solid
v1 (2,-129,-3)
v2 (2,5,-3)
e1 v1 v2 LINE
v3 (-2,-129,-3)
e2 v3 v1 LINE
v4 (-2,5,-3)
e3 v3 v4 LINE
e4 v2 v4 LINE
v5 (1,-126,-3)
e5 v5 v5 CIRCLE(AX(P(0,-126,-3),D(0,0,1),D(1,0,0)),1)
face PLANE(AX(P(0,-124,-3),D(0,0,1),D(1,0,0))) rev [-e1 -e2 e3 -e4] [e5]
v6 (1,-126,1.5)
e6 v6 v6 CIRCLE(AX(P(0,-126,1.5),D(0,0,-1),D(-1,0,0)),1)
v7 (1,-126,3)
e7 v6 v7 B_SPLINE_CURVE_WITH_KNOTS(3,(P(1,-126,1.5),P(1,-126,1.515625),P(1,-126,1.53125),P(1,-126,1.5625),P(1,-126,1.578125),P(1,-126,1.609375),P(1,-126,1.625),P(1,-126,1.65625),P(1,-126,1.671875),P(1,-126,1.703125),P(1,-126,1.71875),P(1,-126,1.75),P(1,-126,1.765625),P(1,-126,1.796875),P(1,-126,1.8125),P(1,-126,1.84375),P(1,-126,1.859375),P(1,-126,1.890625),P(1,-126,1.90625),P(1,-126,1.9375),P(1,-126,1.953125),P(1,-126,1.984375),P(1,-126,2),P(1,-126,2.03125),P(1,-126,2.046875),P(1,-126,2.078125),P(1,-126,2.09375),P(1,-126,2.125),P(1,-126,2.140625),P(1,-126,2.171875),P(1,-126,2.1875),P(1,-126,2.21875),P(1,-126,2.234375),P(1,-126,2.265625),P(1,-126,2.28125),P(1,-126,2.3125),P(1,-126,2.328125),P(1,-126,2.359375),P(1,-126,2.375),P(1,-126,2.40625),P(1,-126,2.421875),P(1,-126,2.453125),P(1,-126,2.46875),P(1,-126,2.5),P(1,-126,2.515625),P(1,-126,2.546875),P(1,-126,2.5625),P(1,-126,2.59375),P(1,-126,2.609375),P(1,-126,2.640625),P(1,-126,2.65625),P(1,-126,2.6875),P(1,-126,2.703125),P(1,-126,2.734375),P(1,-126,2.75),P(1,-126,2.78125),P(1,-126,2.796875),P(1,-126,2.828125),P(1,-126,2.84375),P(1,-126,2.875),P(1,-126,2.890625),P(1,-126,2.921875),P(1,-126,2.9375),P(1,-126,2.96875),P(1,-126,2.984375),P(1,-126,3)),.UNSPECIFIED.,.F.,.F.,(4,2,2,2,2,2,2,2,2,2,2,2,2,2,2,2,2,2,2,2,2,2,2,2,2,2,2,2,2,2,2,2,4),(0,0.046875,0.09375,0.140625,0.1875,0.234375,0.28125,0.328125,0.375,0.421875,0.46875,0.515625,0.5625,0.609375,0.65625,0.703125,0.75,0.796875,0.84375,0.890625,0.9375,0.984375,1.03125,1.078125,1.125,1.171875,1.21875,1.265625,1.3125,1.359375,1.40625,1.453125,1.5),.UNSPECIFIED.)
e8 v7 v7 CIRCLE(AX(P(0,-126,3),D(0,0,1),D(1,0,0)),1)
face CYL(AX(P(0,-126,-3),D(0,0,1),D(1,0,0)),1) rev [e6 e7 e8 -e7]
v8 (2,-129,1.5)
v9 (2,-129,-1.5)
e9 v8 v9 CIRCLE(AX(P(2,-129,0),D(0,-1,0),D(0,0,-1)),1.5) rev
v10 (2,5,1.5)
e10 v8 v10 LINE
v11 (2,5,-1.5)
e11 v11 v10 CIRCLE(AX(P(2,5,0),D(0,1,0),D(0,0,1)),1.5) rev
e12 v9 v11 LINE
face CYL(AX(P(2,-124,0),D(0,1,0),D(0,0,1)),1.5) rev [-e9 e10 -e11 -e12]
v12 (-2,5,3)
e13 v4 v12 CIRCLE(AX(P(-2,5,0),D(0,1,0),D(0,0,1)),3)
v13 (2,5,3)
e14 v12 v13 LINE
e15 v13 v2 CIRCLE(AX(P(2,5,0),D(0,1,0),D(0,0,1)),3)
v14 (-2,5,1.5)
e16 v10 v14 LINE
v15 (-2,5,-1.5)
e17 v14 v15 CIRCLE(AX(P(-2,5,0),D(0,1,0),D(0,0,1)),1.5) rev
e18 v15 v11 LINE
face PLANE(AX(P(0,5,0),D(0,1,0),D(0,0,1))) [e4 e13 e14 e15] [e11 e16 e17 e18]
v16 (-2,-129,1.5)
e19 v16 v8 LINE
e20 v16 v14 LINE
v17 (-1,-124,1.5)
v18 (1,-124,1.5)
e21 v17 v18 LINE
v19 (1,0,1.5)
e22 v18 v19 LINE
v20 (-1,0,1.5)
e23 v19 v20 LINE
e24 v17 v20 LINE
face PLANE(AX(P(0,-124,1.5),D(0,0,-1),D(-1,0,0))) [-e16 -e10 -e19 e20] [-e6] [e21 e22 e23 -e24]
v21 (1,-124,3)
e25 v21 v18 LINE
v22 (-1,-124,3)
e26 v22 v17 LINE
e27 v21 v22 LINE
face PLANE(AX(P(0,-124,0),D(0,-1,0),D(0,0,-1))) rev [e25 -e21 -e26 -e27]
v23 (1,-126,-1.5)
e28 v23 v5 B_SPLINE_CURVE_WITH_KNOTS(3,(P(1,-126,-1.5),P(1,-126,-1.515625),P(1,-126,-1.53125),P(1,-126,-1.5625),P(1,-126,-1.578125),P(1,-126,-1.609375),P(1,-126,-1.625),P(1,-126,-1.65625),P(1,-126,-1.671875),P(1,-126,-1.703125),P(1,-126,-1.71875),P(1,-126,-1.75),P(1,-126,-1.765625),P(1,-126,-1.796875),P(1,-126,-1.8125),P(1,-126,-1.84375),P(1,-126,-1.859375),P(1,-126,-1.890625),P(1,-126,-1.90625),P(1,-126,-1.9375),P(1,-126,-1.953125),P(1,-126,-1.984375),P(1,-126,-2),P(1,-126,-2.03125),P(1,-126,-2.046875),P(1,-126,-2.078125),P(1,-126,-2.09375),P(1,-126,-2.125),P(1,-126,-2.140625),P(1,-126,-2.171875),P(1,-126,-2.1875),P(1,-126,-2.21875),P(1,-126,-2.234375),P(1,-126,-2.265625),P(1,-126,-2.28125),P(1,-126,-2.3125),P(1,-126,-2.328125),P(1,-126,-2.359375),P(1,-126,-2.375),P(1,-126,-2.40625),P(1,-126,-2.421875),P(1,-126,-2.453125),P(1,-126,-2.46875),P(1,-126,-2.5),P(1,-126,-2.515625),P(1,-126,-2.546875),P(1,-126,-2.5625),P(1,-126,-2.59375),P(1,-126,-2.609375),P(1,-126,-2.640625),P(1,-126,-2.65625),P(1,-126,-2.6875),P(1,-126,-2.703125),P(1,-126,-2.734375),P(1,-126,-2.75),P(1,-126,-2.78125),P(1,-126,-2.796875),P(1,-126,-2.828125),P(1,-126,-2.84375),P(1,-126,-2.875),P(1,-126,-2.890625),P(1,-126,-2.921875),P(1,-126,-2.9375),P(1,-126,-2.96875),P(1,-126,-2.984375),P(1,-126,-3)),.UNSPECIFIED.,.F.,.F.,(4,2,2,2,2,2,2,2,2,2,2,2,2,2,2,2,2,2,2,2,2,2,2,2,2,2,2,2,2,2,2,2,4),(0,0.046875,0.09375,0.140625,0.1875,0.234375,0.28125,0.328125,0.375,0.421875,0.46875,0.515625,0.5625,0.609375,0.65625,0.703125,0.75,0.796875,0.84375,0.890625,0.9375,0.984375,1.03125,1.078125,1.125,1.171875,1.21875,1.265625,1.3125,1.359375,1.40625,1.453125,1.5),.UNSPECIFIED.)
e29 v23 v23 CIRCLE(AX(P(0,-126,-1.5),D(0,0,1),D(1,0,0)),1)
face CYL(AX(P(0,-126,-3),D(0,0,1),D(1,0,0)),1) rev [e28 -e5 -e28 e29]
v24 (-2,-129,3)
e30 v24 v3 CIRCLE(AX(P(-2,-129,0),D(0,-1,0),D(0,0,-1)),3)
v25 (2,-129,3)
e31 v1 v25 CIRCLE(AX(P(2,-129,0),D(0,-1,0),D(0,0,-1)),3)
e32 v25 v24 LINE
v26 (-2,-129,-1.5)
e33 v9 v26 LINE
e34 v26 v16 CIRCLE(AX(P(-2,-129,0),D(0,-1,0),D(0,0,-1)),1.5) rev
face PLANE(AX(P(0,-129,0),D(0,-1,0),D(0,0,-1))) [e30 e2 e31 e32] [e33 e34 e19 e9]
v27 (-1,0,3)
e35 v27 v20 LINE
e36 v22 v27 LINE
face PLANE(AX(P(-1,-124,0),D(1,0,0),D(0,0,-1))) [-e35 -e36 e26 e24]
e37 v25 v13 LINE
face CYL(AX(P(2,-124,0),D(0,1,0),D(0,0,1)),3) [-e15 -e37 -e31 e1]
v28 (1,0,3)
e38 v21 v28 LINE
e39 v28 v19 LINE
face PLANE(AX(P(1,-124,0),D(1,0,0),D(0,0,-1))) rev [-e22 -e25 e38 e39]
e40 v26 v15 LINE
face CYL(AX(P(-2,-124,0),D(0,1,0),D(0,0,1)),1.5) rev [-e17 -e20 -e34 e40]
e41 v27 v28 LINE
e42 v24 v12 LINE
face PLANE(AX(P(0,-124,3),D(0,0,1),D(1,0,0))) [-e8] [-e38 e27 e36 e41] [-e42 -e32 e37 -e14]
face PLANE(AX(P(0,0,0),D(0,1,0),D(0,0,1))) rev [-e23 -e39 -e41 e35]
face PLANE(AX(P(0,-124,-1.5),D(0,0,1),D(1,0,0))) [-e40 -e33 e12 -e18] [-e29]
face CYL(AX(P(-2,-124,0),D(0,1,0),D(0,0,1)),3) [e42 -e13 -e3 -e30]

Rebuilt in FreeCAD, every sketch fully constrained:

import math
import FreeCAD as App
import Part
import Sketcher
from FreeCAD import Vector
Q = App.Units.Quantity

doc = App.newDocument("Part")
body = doc.addObject("PartDesign::Body", "Body")

# Sketch on XZ plane
sketch1 = body.newObject("Sketcher::SketchObject", "Sketch")
sketch1.AttachmentSupport = (doc.getObject("XZ_Plane"), [""])
sketch1.MapMode = "FlatFace"
sketch1.addGeometry(Part.LineSegment(Vector(-2, -1.5, 0), Vector(2, -1.5, 0)), False)
sketch1.addGeometry(Part.ArcOfCircle(Part.Circle(Vector(2, 0, 0), Vector(0, 0, 1), 1.5), math.radians(-90), math.radians(90)), False)
sketch1.addGeometry(Part.LineSegment(Vector(2, 1.5, 0), Vector(1, 1.5, 0)), False)
sketch1.addGeometry(Part.LineSegment(Vector(1, 1.5, 0), Vector(1, 3, 0)), False)
sketch1.addGeometry(Part.LineSegment(Vector(1, 3, 0), Vector(2, 3, 0)), False)
sketch1.addGeometry(Part.ArcOfCircle(Part.Circle(Vector(2, 0, 0), Vector(0, 0, 1), 3), math.radians(0), math.radians(90)), False)
sketch1.addGeometry(Part.ArcOfCircle(Part.Circle(Vector(2, 0, 0), Vector(0, 0, 1), 3), math.radians(-90), math.radians(0)), False)
sketch1.addGeometry(Part.LineSegment(Vector(2, -3, 0), Vector(-2, -3, 0)), False)
sketch1.addGeometry(Part.ArcOfCircle(Part.Circle(Vector(-2, 0, 0), Vector(0, 0, 1), 3), math.radians(180), math.radians(270)), False)
sketch1.addGeometry(Part.ArcOfCircle(Part.Circle(Vector(-2, 0, 0), Vector(0, 0, 1), 3), math.radians(90), math.radians(180)), False)
sketch1.addGeometry(Part.LineSegment(Vector(-2, 3, 0), Vector(-1, 3, 0)), False)
sketch1.addGeometry(Part.LineSegment(Vector(-1, 3, 0), Vector(-1, 1.5, 0)), False)
sketch1.addGeometry(Part.LineSegment(Vector(-1, 1.5, 0), Vector(-2, 1.5, 0)), False)
sketch1.addGeometry(Part.ArcOfCircle(Part.Circle(Vector(-2, 0, 0), Vector(0, 0, 1), 1.5), math.radians(90), math.radians(270)), False)
sketch1.addConstraint(Sketcher.Constraint("Tangent", 0, 2, 1, 1))
sketch1.addConstraint(Sketcher.Constraint("Tangent", 1, 2, 2, 1))
sketch1.addConstraint(Sketcher.Constraint("Coincident", 2, 2, 3, 1))
sketch1.addConstraint(Sketcher.Constraint("Coincident", 3, 2, 4, 1))
sketch1.addConstraint(Sketcher.Constraint("Tangent", 4, 2, 5, 2))
sketch1.addConstraint(Sketcher.Constraint("Tangent", 5, 1, 6, 2))
sketch1.addConstraint(Sketcher.Constraint("Tangent", 6, 1, 7, 1))
sketch1.addConstraint(Sketcher.Constraint("Tangent", 7, 2, 8, 2))
sketch1.addConstraint(Sketcher.Constraint("Tangent", 8, 1, 9, 2))
sketch1.addConstraint(Sketcher.Constraint("Tangent", 9, 1, 10, 1))
sketch1.addConstraint(Sketcher.Constraint("Coincident", 10, 2, 11, 1))
sketch1.addConstraint(Sketcher.Constraint("Coincident", 11, 2, 12, 1))
sketch1.addConstraint(Sketcher.Constraint("Tangent", 12, 2, 13, 1))
sketch1.addConstraint(Sketcher.Constraint("Tangent", 13, 2, 0, 1))
sketch1.addConstraint(Sketcher.Constraint("Horizontal", 0))
sketch1.addConstraint(Sketcher.Constraint("Horizontal", 2))
sketch1.addConstraint(Sketcher.Constraint("Vertical", 3))
sketch1.addConstraint(Sketcher.Constraint("Horizontal", 4))
sketch1.addConstraint(Sketcher.Constraint("Horizontal", 7))
sketch1.addConstraint(Sketcher.Constraint("Horizontal", 10))
sketch1.addConstraint(Sketcher.Constraint("Vertical", 11))
sketch1.addConstraint(Sketcher.Constraint("Horizontal", 12))
sketch1.addConstraint(Sketcher.Constraint("Coincident", 5, 3, 1, 3))
sketch1.addConstraint(Sketcher.Constraint("Coincident", 13, 3, 8, 3))
sketch1.addConstraint(Sketcher.Constraint("Equal", 5, 6))
sketch1.addConstraint(Sketcher.Constraint("Equal", 6, 8))
sketch1.addConstraint(Sketcher.Constraint("Equal", 8, 9))
sketch1.addConstraint(Sketcher.Constraint("Symmetric", 1, 3, 8, 3, -1, 1))
sketch1.addConstraint(Sketcher.Constraint("PointOnObject", 5, 1, -1))
sketch1.addConstraint(Sketcher.Constraint("PointOnObject", 8, 1, -1))
sketch1.addConstraint(Sketcher.Constraint("Equal", 4, 10))
sketch1.addConstraint(Sketcher.Constraint("Radius", 5, Q("3 mm")))
sketch1.addConstraint(Sketcher.Constraint("Radius", 1, Q("1.5 mm")))
sketch1.addConstraint(Sketcher.Constraint("DistanceX", 0, 1, 0, 2, Q("4 mm")))
sketch1.addConstraint(Sketcher.Constraint("DistanceX", 2, 2, 2, 1, Q("1 mm")))
pad1 = body.newObject("PartDesign::Pad", "Pad")
pad1.Profile = sketch1
pad1.Length = 124

# Sketch on XZ plane
sketch2 = body.newObject("Sketcher::SketchObject", "Sketch001")
sketch2.AttachmentSupport = (doc.getObject("XZ_Plane"), [""])
sketch2.MapMode = "FlatFace"
sketch2.AttachmentOffset = App.Placement(Vector(0, 0, -5), App.Rotation())
sketch2.addGeometry(Part.LineSegment(Vector(2, -3, 0), Vector(-2, -3, 0)), False)
sketch2.addGeometry(Part.ArcOfCircle(Part.Circle(Vector(-2, 0, 0), Vector(0, 0, 1), 3), math.radians(90), math.radians(270)), False)
sketch2.addGeometry(Part.LineSegment(Vector(-2, 3, 0), Vector(2, 3, 0)), False)
sketch2.addGeometry(Part.ArcOfCircle(Part.Circle(Vector(2, 0, 0), Vector(0, 0, 1), 3), math.radians(-90), math.radians(90)), False)
sketch2.addGeometry(Part.LineSegment(Vector(-2, -1.5, 0), Vector(2, -1.5, 0)), False)
sketch2.addGeometry(Part.ArcOfCircle(Part.Circle(Vector(2, 0, 0), Vector(0, 0, 1), 1.5), math.radians(-90), math.radians(90)), False)
sketch2.addGeometry(Part.LineSegment(Vector(2, 1.5, 0), Vector(-2, 1.5, 0)), False)
sketch2.addGeometry(Part.ArcOfCircle(Part.Circle(Vector(-2, 0, 0), Vector(0, 0, 1), 1.5), math.radians(90), math.radians(270)), False)
sketch2.addConstraint(Sketcher.Constraint("Tangent", 0, 2, 1, 2))
sketch2.addConstraint(Sketcher.Constraint("Tangent", 1, 1, 2, 1))
sketch2.addConstraint(Sketcher.Constraint("Tangent", 2, 2, 3, 2))
sketch2.addConstraint(Sketcher.Constraint("Tangent", 3, 1, 0, 1))
sketch2.addConstraint(Sketcher.Constraint("Tangent", 4, 2, 5, 1))
sketch2.addConstraint(Sketcher.Constraint("Tangent", 5, 2, 6, 1))
sketch2.addConstraint(Sketcher.Constraint("Tangent", 6, 2, 7, 1))
sketch2.addConstraint(Sketcher.Constraint("Tangent", 7, 2, 4, 1))
sketch2.addConstraint(Sketcher.Constraint("Horizontal", 0))
sketch2.addConstraint(Sketcher.Constraint("Horizontal", 2))
sketch2.addConstraint(Sketcher.Constraint("Horizontal", 4))
sketch2.addConstraint(Sketcher.Constraint("Horizontal", 6))
sketch2.addConstraint(Sketcher.Constraint("Coincident", 5, 3, 3, 3))
sketch2.addConstraint(Sketcher.Constraint("Symmetric", 1, 3, 3, 3, -1, 1))
sketch2.addConstraint(Sketcher.Constraint("Vertical", 7, 3, 0, 2))
sketch2.addConstraint(Sketcher.Constraint("Radius", 1, Q("3 mm")))
sketch2.addConstraint(Sketcher.Constraint("Radius", 5, Q("1.5 mm")))
sketch2.addConstraint(Sketcher.Constraint("DistanceX", 0, 2, 0, 1, Q("4 mm")))
pad2 = body.newObject("PartDesign::Pad", "Pad001")
pad2.Profile = sketch2
pad2.Length = 5

# Sketch on XZ plane
sketch3 = body.newObject("Sketcher::SketchObject", "Sketch002")
sketch3.AttachmentSupport = (doc.getObject("XZ_Plane"), [""])
sketch3.MapMode = "FlatFace"
sketch3.AttachmentOffset = App.Placement(Vector(0, 0, 124), App.Rotation())
sketch3.addGeometry(Part.ArcOfCircle(Part.Circle(Vector(2, 0, 0), Vector(0, 0, 1), 3), math.radians(-90), math.radians(90)), False)
sketch3.addGeometry(Part.LineSegment(Vector(2, 3, 0), Vector(-2, 3, 0)), False)
sketch3.addGeometry(Part.ArcOfCircle(Part.Circle(Vector(-2, 0, 0), Vector(0, 0, 1), 3), math.radians(90), math.radians(270)), False)
sketch3.addGeometry(Part.LineSegment(Vector(-2, -3, 0), Vector(2, -3, 0)), False)
sketch3.addGeometry(Part.ArcOfCircle(Part.Circle(Vector(-2, 0, 0), Vector(0, 0, 1), 1.5), math.radians(90), math.radians(270)), False)
sketch3.addGeometry(Part.LineSegment(Vector(-2, 1.5, 0), Vector(2, 1.5, 0)), False)
sketch3.addGeometry(Part.ArcOfCircle(Part.Circle(Vector(2, 0, 0), Vector(0, 0, 1), 1.5), math.radians(-90), math.radians(90)), False)
sketch3.addGeometry(Part.LineSegment(Vector(2, -1.5, 0), Vector(-2, -1.5, 0)), False)
sketch3.addConstraint(Sketcher.Constraint("Tangent", 0, 2, 1, 1))
sketch3.addConstraint(Sketcher.Constraint("Tangent", 1, 2, 2, 1))
sketch3.addConstraint(Sketcher.Constraint("Tangent", 2, 2, 3, 1))
sketch3.addConstraint(Sketcher.Constraint("Tangent", 3, 2, 0, 1))
sketch3.addConstraint(Sketcher.Constraint("Tangent", 4, 1, 5, 1))
sketch3.addConstraint(Sketcher.Constraint("Tangent", 5, 2, 6, 2))
sketch3.addConstraint(Sketcher.Constraint("Tangent", 6, 1, 7, 1))
sketch3.addConstraint(Sketcher.Constraint("Tangent", 7, 2, 4, 2))
sketch3.addConstraint(Sketcher.Constraint("Horizontal", 1))
sketch3.addConstraint(Sketcher.Constraint("Horizontal", 3))
sketch3.addConstraint(Sketcher.Constraint("Horizontal", 5))
sketch3.addConstraint(Sketcher.Constraint("Horizontal", 7))
sketch3.addConstraint(Sketcher.Constraint("Coincident", 4, 3, 2, 3))
sketch3.addConstraint(Sketcher.Constraint("Symmetric", 0, 3, 2, 3, -1, 1))
sketch3.addConstraint(Sketcher.Constraint("Vertical", 6, 3, 0, 2))
sketch3.addConstraint(Sketcher.Constraint("Radius", 0, Q("3 mm")))
sketch3.addConstraint(Sketcher.Constraint("Radius", 4, Q("1.5 mm")))
sketch3.addConstraint(Sketcher.Constraint("DistanceX", 1, 2, 1, 1, Q("4 mm")))
pad3 = body.newObject("PartDesign::Pad", "Pad002")
pad3.Profile = sketch3
pad3.Length = 5

# Sketch on XY plane
sketch4 = body.newObject("Sketcher::SketchObject", "Sketch003")
sketch4.AttachmentSupport = (doc.getObject("XY_Plane"), [""])
sketch4.MapMode = "FlatFace"
sketch4.AttachmentOffset = App.Placement(Vector(0, 0, 3), App.Rotation())
sketch4.addGeometry(Part.Circle(Vector(0, -126, 0), Vector(0, 0, 1), 1), False)
sketch4.addConstraint(Sketcher.Constraint("PointOnObject", 0, 3, -2))
sketch4.addConstraint(Sketcher.Constraint("Diameter", 0, Q("2 mm")))
sketch4.addConstraint(Sketcher.Constraint("DistanceY", 0, 3, -1, 1, Q("126 mm")))
pocket1 = body.newObject("PartDesign::Pocket", "Pocket")
pocket1.Profile = sketch4
pocket1.Type = "ThroughAll"
pocket1.Midplane = True

doc.recompute()
